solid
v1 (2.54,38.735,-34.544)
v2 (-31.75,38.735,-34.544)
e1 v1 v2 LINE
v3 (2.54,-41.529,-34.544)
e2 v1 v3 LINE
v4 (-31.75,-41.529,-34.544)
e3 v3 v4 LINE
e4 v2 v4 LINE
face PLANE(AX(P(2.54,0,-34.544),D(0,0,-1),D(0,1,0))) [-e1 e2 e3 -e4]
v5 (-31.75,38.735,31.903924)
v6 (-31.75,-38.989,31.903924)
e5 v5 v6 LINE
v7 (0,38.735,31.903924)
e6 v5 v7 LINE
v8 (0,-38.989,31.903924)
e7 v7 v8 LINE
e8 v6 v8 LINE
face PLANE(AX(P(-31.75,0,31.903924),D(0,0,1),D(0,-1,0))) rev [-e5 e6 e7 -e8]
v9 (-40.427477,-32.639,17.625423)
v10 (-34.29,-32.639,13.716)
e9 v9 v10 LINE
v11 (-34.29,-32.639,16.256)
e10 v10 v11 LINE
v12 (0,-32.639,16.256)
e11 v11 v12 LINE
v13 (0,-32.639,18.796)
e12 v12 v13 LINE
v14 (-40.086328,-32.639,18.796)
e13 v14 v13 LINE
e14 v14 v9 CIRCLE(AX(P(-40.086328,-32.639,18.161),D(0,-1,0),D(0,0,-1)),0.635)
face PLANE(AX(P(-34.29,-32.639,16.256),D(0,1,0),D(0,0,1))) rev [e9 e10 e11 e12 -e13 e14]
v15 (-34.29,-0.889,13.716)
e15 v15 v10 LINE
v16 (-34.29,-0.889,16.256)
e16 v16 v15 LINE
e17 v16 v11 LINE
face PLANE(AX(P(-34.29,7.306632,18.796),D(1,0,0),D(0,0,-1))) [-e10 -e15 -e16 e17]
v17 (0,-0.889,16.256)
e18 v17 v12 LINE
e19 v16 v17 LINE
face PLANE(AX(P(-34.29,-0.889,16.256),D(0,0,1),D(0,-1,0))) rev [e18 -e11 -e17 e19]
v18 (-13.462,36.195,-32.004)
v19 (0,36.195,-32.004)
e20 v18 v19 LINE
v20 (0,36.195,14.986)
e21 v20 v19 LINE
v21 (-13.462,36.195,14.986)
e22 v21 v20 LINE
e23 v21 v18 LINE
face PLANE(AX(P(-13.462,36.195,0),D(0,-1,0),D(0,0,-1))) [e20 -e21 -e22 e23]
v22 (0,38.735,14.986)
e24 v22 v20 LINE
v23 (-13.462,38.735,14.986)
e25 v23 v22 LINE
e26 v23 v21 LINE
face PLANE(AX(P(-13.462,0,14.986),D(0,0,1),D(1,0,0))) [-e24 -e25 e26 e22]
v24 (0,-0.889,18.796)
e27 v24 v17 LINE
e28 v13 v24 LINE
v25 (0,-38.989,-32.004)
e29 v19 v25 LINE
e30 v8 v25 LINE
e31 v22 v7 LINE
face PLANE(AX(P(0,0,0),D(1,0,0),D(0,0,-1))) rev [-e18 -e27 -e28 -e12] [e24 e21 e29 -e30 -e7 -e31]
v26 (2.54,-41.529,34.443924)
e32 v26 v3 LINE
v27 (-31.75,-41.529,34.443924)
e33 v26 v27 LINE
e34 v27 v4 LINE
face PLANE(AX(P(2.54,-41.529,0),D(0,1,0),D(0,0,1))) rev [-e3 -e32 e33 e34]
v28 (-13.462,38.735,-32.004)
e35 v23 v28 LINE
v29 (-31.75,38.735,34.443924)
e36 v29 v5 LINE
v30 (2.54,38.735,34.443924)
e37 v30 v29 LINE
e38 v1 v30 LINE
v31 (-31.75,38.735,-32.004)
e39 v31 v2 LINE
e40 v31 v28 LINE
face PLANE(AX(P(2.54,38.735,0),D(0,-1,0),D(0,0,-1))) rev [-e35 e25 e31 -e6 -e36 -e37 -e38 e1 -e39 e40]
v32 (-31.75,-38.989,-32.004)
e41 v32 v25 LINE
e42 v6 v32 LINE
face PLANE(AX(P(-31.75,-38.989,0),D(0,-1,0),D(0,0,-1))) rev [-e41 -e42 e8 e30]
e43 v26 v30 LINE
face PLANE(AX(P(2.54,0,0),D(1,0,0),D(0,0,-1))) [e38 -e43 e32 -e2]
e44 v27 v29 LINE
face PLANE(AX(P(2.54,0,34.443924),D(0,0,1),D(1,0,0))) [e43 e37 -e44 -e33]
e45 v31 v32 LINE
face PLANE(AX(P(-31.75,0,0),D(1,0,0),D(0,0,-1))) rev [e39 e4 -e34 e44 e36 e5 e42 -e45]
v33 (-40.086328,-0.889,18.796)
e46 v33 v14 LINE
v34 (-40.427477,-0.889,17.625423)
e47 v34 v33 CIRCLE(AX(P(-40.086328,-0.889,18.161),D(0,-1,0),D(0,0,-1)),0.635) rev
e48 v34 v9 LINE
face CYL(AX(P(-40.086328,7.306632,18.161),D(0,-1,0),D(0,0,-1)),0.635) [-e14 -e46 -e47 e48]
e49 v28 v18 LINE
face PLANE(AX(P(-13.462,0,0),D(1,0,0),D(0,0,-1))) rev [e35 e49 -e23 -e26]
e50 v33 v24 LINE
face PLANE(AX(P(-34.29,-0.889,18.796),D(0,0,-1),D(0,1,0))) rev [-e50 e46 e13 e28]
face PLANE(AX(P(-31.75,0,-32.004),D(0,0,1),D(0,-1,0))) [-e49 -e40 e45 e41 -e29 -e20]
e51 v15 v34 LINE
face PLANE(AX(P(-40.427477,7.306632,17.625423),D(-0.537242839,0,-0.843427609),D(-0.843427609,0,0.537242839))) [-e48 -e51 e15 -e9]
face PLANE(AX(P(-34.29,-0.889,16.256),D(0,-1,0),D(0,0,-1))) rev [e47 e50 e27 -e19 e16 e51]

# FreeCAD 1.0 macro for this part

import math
import FreeCAD as App
import Part
import Sketcher
Q = App.Units.Quantity

doc = App.newDocument("Part")
body = doc.addObject("PartDesign::Body", "Body")

# Sketch on YZ plane
sketch1 = body.newObject("Sketcher::SketchObject", "Sketch")
sketch1.AttachmentSupport = (doc.getObject("YZ_Plane"), [""])
sketch1.MapMode = "FlatFace"
sketch1.addGeometry([
    Part.LineSegment(App.Vector(39, 34, 0), App.Vector(-42, 34, 0)),
    Part.LineSegment(App.Vector(-42, 34, 0), App.Vector(-42, -35, 0)),
    Part.LineSegment(App.Vector(-42, -35, 0), App.Vector(39, -35, 0)),
    Part.LineSegment(App.Vector(39, -35, 0), App.Vector(39, 34, 0)),
], False)
sketch1.addConstraint([
    Sketcher.Constraint("Coincident", 0, 2, 1, 1),
    Sketcher.Constraint("Coincident", 1, 2, 2, 1),
    Sketcher.Constraint("Coincident", 2, 2, 3, 1),
    Sketcher.Constraint("Coincident", 3, 2, 0, 1),
    Sketcher.Constraint("Horizontal", 0),
    Sketcher.Constraint("Vertical", 1),
    Sketcher.Constraint("Horizontal", 2),
    Sketcher.Constraint("Vertical", 3),
    Sketcher.Constraint("DistanceX", 0, 2, 0, 1, Q("3.16 in")),
    Sketcher.Constraint("DistanceY", 1, 2, -1, 1, Q("1.36 in")),
    Sketcher.Constraint("DistanceX", 0, 2, -1, 1, Q("1.635 in")),
    Sketcher.Constraint("DistanceY", 1, 2, 1, 1, 68.987924),
])
pad1 = body.newObject("PartDesign::Pad", "Pad")
pad1.Profile = sketch1
pad1.Length = Q("0.1 in")

# Sketch on YZ plane
sketch2 = body.newObject("Sketcher::SketchObject", "Sketch001")
sketch2.AttachmentSupport = (doc.getObject("YZ_Plane"), [""])
sketch2.MapMode = "FlatFace"
sketch2.addGeometry([
    Part.LineSegment(App.Vector(38.7, -34.5, 0), App.Vector(38.7, -32, 0)),  # 0
    Part.LineSegment(App.Vector(38.7, -32, 0), App.Vector(-39, -32, 0)),  # 1
    Part.LineSegment(App.Vector(-39, -32, 0), App.Vector(-39, 31.9, 0)),  # 2
    Part.LineSegment(App.Vector(-39, 31.9, 0), App.Vector(38.7, 31.9, 0)),  # 3
    Part.LineSegment(App.Vector(38.7, 31.9, 0), App.Vector(38.7, 34.4, 0)),  # 4
    Part.LineSegment(App.Vector(38.7, 34.4, 0), App.Vector(-41.5, 34.4, 0)),  # 5
    Part.LineSegment(App.Vector(-41.5, 34.4, 0), App.Vector(-41.5, -34.5, 0)),  # 6
    Part.LineSegment(App.Vector(-41.5, -34.5, 0), App.Vector(38.7, -34.5, 0)),  # 7
], False)
sketch2.addConstraint([
    Sketcher.Constraint("Coincident", 0, 2, 1, 1),
    Sketcher.Constraint("Coincident", 1, 2, 2, 1),
    Sketcher.Constraint("Coincident", 2, 2, 3, 1),
    Sketcher.Constraint("Coincident", 3, 2, 4, 1),
    Sketcher.Constraint("Coincident", 4, 2, 5, 1),
    Sketcher.Constraint("Coincident", 5, 2, 6, 1),
    Sketcher.Constraint("Coincident", 6, 2, 7, 1),
    Sketcher.Constraint("Coincident", 7, 2, 0, 1),
    Sketcher.Constraint("Vertical", 0),
    Sketcher.Constraint("Horizontal", 1),
    Sketcher.Constraint("Vertical", 2),
    Sketcher.Constraint("Horizontal", 3),
    Sketcher.Constraint("Vertical", 4),
    Sketcher.Constraint("Horizontal", 5),
    Sketcher.Constraint("Vertical", 6),
    Sketcher.Constraint("Horizontal", 7),
    Sketcher.Constraint("Vertical", 0, 2, 3, 2),
    Sketcher.Constraint("Equal", 0, 4),
    Sketcher.Constraint("DistanceY", 0, 1, 0, 2, Q("0.1 in")),
    Sketcher.Constraint("DistanceX", 1, 2, 1, 1, Q("3.06 in")),
    Sketcher.Constraint("DistanceX", 5, 2, 5, 1, Q("3.16 in")),
    Sketcher.Constraint("DistanceY", 0, 2, -1, 1, Q("1.26 in")),
    Sketcher.Constraint("DistanceX", -1, 1, 0, 2, Q("1.525 in")),
    Sketcher.Constraint("DistanceY", 2, 1, 2, 2, 63.907924),
])
pad2 = body.newObject("PartDesign::Pad", "Pad001")
pad2.Profile = sketch2
pad2.Length = Q("1.25 in")
pad2.Reversed = True

# Sketch on YZ plane
sketch3 = body.newObject("Sketcher::SketchObject", "Sketch002")
sketch3.AttachmentSupport = (doc.getObject("YZ_Plane"), [""])
sketch3.MapMode = "FlatFace"
sketch3.addGeometry([
    Part.LineSegment(App.Vector(38.7, 15, 0), App.Vector(36.2, 15, 0)),
    Part.LineSegment(App.Vector(36.2, 15, 0), App.Vector(36.2, -32, 0)),
    Part.LineSegment(App.Vector(36.2, -32, 0), App.Vector(38.7, -32, 0)),
    Part.LineSegment(App.Vector(38.7, -32, 0), App.Vector(38.7, 15, 0)),
], False)
sketch3.addConstraint([
    Sketcher.Constraint("Coincident", 0, 2, 1, 1),
    Sketcher.Constraint("Coincident", 1, 2, 2, 1),
    Sketcher.Constraint("Coincident", 2, 2, 3, 1),
    Sketcher.Constraint("Coincident", 3, 2, 0, 1),
    Sketcher.Constraint("Horizontal", 0),
    Sketcher.Constraint("Vertical", 1),
    Sketcher.Constraint("Horizontal", 2),
    Sketcher.Constraint("Vertical", 3),
    Sketcher.Constraint("DistanceX", 0, 2, 0, 1, Q("0.1 in")),
    Sketcher.Constraint("DistanceY", 1, 2, 1, 1, Q("1.85 in")),
    Sketcher.Constraint("DistanceY", -1, 1, 0, 2, Q("0.59 in")),
    Sketcher.Constraint("DistanceX", -1, 1, 0, 2, Q("1.425 in")),
])
pad3 = body.newObject("PartDesign::Pad", "Pad002")
pad3.Profile = sketch3
pad3.Length = Q("0.53 in")
pad3.Reversed = True

# Sketch on YZ plane
sketch4 = body.newObject("Sketcher::SketchObject", "Sketch003")
sketch4.AttachmentSupport = (doc.getObject("YZ_Plane"), [""])
sketch4.MapMode = "FlatFace"
sketch4.addGeometry([
    Part.LineSegment(App.Vector(-0.9, 16.3, 0), App.Vector(-32.6, 16.3, 0)),
    Part.LineSegment(App.Vector(-32.6, 16.3, 0), App.Vector(-32.6, 18.8, 0)),
    Part.LineSegment(App.Vector(-32.6, 18.8, 0), App.Vector(-0.9, 18.8, 0)),
    Part.LineSegment(App.Vector(-0.9, 18.8, 0), App.Vector(-0.9, 16.3, 0)),
], False)
sketch4.addConstraint([
    Sketcher.Constraint("Coincident", 0, 2, 1, 1),
    Sketcher.Constraint("Coincident", 1, 2, 2, 1),
    Sketcher.Constraint("Coincident", 2, 2, 3, 1),
    Sketcher.Constraint("Coincident", 3, 2, 0, 1),
    Sketcher.Constraint("Horizontal", 0),
    Sketcher.Constraint("Vertical", 1),
    Sketcher.Constraint("Horizontal", 2),
    Sketcher.Constraint("Vertical", 3),
    Sketcher.Constraint("DistanceY", 1, 1, 1, 2, Q("0.1 in")),
    Sketcher.Constraint("DistanceX", 0, 2, 0, 1, Q("1.25 in")),
    Sketcher.Constraint("DistanceY", -1, 1, 0, 2, Q("0.64 in")),
    Sketcher.Constraint("DistanceX", 0, 2, -1, 1, Q("1.285 in")),
])
pad4 = body.newObject("PartDesign::Pad", "Pad003")
pad4.Profile = sketch4
pad4.Length = Q("1.35 in")
pad4.Reversed = True

# Sketch on XZ plane
sketch5 = body.newObject("Sketcher::SketchObject", "Sketch004")
sketch5.AttachmentSupport = (doc.getObject("XZ_Plane"), [""])
sketch5.MapMode = "FlatFace"
sketch5.AttachmentOffset = App.Placement(App.Vector(0, 0, 1.285 * 25.4), App.Rotation())
sketch5.addGeometry([
    Part.LineSegment(App.Vector(-34.3, 18.8, 0), App.Vector(-40.1, 18.8, 0)),
    Part.ArcOfCircle(Part.Circle(App.Vector(-40.1, 18.2, 0), App.Vector(0, 0, 1), 0.6), math.radians(90), math.radians(238)),
    Part.LineSegment(App.Vector(-40.4, 17.6, 0), App.Vector(-34.3, 13.7, 0)),
    Part.LineSegment(App.Vector(-34.3, 13.7, 0), App.Vector(-34.3, 18.8, 0)),
], False)
sketch5.addConstraint([
    Sketcher.Constraint("Tangent", 0, 2, 1, 1),
    Sketcher.Constraint("Tangent", 1, 2, 2, 1),
    Sketcher.Constraint("Coincident", 2, 2, 3, 1),
    Sketcher.Constraint("Coincident", 3, 2, 0, 1),
    Sketcher.Constraint("Horizontal", 0),
    Sketcher.Constraint("Vertical", 3),
    Sketcher.Constraint("DistanceY", 3, 1, 3, 2, Q("0.2 in")),
    Sketcher.Constraint("Radius", 1, Q("0.025 in")),
    Sketcher.Constraint("DistanceY", -1, 1, 0, 2, Q("0.74 in")),
    Sketcher.Constraint("DistanceX", 2, 2, -1, 1, Q("1.35 in")),
    Sketcher.Constraint("DistanceX", 0, 2, 0, 1, 5.796328),
])
pad5 = body.newObject("PartDesign::Pad", "Pad004")
pad5.Profile = sketch5
pad5.Length = Q("1.25 in")
pad5.Reversed = True

doc.recompute()
